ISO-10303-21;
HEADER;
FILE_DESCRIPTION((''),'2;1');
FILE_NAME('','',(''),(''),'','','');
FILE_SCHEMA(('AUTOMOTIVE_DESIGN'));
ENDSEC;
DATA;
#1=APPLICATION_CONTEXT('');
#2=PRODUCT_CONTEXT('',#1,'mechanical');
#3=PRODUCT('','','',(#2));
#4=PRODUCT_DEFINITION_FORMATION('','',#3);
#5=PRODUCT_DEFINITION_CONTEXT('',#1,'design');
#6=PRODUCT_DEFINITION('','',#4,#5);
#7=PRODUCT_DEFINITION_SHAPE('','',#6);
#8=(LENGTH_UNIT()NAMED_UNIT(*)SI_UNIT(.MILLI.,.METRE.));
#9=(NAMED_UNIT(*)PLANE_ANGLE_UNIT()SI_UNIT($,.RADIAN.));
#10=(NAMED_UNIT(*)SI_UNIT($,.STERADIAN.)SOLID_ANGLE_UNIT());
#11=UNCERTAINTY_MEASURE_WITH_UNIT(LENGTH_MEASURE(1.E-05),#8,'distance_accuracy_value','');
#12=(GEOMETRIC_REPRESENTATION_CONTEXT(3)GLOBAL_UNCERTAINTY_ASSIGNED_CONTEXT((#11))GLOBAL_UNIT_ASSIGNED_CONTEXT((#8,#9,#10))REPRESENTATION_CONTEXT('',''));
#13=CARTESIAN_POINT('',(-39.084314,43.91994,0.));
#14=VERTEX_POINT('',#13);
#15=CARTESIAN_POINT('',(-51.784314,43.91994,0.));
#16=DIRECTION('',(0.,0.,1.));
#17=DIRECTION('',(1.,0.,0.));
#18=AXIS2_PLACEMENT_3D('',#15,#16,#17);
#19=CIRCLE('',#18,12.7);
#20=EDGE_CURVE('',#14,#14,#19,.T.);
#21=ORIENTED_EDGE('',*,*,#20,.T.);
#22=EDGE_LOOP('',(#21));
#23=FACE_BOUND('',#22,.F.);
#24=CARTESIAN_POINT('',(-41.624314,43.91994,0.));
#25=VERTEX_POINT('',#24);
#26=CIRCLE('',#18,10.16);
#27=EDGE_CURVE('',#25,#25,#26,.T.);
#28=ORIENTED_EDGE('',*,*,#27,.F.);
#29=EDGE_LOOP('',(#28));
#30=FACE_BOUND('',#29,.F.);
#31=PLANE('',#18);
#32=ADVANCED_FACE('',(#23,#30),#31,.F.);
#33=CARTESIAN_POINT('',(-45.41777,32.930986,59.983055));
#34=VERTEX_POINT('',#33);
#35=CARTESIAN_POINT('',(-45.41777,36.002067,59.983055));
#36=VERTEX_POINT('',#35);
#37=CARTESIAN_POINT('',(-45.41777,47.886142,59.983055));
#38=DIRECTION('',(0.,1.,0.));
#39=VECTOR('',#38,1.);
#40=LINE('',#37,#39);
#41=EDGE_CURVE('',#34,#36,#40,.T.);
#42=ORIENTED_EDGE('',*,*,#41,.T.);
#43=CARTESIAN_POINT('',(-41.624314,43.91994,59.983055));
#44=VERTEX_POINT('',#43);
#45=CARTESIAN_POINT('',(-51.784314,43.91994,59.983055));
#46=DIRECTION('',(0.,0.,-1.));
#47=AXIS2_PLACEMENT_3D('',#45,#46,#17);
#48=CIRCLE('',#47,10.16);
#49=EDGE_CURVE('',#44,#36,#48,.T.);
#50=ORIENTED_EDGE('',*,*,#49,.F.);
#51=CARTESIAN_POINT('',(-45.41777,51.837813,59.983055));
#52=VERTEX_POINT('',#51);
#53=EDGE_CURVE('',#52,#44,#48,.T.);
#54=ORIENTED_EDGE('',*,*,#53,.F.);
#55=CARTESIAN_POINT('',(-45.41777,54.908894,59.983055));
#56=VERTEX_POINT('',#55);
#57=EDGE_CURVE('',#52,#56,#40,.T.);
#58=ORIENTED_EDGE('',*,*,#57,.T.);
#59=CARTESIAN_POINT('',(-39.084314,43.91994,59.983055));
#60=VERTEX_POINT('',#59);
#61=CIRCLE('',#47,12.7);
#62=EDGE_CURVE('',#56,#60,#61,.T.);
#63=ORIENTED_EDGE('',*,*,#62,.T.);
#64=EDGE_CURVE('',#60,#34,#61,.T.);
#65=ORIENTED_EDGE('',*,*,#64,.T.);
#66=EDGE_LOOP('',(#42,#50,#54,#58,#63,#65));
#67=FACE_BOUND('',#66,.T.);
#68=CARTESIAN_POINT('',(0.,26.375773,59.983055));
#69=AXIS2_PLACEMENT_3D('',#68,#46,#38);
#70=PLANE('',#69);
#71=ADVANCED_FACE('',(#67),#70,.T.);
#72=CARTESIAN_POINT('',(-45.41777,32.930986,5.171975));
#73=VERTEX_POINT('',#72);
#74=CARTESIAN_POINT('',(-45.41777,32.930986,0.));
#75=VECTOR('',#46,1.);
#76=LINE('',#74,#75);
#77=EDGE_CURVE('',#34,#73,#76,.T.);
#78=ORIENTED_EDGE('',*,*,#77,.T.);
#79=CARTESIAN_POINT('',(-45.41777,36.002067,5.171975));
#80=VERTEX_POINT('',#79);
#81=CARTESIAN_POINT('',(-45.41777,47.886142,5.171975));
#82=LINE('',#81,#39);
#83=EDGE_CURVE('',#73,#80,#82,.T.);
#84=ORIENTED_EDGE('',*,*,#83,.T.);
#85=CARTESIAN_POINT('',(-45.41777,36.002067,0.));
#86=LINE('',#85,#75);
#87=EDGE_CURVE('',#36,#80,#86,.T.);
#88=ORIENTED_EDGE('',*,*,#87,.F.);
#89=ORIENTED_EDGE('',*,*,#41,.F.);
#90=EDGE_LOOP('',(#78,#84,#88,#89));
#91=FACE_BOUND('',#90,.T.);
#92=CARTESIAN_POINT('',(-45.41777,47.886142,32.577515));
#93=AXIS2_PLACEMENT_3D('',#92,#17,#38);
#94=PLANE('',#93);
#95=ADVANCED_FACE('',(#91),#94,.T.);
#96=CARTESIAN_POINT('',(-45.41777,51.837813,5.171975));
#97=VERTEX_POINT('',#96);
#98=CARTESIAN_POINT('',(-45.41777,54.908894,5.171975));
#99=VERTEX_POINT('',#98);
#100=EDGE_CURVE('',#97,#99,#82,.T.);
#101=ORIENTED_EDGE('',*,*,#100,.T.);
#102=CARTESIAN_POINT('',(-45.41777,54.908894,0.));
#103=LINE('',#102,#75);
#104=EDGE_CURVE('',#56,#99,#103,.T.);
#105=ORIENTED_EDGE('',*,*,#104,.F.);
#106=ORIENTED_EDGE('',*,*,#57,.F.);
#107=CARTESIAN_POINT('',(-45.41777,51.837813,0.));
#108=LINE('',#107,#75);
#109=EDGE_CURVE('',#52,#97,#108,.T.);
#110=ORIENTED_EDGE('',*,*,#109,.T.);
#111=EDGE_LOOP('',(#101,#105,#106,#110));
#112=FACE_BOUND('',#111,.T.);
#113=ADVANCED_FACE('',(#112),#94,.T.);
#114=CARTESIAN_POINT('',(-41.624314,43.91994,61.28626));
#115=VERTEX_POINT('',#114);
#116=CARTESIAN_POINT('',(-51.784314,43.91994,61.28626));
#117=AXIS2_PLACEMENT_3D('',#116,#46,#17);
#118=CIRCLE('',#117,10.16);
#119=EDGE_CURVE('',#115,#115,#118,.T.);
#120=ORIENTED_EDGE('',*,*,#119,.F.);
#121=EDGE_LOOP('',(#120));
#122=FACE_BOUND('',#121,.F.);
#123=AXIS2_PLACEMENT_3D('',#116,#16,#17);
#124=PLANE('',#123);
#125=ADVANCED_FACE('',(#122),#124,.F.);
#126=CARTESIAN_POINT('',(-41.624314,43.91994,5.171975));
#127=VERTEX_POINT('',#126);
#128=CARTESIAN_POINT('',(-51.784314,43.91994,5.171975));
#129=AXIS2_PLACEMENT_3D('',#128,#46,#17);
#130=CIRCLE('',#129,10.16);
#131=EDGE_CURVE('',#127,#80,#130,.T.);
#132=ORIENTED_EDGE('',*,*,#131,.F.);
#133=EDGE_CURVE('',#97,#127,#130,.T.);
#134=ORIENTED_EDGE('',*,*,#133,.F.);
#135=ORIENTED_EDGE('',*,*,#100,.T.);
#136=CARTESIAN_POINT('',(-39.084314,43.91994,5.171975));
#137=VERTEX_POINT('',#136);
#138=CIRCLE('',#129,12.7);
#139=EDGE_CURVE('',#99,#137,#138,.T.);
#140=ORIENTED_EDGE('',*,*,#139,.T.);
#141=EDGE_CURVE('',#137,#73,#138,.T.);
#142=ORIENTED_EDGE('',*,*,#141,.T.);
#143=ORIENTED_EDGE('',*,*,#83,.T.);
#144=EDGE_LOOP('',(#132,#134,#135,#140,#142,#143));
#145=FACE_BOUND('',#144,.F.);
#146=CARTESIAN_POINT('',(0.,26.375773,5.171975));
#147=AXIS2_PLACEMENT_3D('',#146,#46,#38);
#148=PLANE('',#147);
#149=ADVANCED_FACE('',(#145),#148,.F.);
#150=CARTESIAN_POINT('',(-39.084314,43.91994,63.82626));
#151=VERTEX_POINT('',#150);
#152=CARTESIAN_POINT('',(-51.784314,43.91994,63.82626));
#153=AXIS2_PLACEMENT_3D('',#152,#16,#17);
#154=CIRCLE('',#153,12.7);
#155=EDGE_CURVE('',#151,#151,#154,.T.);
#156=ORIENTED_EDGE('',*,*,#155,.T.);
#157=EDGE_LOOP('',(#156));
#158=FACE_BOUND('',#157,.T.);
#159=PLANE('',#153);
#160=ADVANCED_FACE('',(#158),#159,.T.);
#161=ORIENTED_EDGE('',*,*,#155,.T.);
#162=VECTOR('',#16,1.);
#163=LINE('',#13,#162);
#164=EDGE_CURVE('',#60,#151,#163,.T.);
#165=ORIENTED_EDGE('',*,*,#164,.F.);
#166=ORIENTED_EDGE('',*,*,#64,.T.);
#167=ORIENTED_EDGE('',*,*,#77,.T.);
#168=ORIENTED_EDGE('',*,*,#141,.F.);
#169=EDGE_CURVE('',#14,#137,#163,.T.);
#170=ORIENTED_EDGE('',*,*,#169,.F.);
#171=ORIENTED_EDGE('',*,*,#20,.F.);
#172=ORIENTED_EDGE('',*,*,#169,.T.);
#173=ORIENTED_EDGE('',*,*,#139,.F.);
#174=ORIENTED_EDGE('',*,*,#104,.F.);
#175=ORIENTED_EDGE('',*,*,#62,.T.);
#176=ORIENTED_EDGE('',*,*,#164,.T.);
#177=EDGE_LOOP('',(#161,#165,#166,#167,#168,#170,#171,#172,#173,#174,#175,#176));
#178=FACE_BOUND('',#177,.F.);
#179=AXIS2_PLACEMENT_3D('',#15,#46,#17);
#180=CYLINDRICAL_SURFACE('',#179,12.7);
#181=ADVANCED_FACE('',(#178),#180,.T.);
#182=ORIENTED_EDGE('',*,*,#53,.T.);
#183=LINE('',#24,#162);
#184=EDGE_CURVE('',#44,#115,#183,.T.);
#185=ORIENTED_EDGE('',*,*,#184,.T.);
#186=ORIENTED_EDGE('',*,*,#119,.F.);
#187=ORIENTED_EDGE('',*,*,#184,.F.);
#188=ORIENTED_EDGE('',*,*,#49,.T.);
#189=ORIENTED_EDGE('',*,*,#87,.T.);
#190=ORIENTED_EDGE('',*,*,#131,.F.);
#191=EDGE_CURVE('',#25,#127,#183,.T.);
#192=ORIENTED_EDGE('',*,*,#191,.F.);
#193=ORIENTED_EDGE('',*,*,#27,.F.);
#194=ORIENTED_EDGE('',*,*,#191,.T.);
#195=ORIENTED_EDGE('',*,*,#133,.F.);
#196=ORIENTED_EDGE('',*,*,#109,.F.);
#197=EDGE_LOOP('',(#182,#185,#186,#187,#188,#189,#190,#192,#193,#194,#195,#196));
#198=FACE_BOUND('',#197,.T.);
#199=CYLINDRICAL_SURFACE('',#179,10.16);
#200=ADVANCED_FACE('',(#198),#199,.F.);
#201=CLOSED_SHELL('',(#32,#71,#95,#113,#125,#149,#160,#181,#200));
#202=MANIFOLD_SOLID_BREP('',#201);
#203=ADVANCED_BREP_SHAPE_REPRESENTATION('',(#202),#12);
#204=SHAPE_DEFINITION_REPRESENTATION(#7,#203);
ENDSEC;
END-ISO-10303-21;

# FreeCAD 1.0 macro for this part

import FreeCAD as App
import Part
import Sketcher
from FreeCAD import Vector
Q = App.Units.Quantity


def faces_at(feature, points):
    """Names of the faces that lie closest to the given points."""
    faces = feature.Shape.Faces
    near = lambda p: min(range(len(faces)), key=lambda i: faces[i].distToShape(Part.Vertex(*p))[0])
    return sorted({f"Face{near(p) + 1}" for p in points})


def add_polygon(sketch, points):
    """Adds a closed chain of lines whose ends are joined by coincident constraints."""
    first, n = sketch.GeometryCount, len(points)
    for a, b in zip(points, points[1:] + points[:1]):
        sketch.addGeometry(Part.LineSegment(App.Vector(*a, 0), App.Vector(*b, 0)), False)
    for i in range(n):
        sketch.addConstraint(Sketcher.Constraint("Coincident", first + i, 2, first + (i + 1) % n, 1))

doc = App.newDocument("Part")
body = doc.addObject("PartDesign::Body", "Body")

sketch1 = body.newObject("Sketcher::SketchObject", "Sketch")
sketch1.AttachmentSupport = (doc.getObject("XY_Plane"), [""])
sketch1.MapMode = "FlatFace"
sketch1.addGeometry(Part.Circle(Vector(-51.784314, 43.91994, 0), Vector(0, 0, 1), 12.7), False)
sketch1.addConstraint([
    Sketcher.Constraint("Diameter", 0, Q("1 in")),
    Sketcher.Constraint("DistanceY", -1, 1, 0, 3, Q("43.91994 mm")),
    Sketcher.Constraint("DistanceX", 0, 3, -1, 1, Q("51.784314 mm")),
])
pad1 = body.newObject("PartDesign::Pad", "Pad")
pad1.Profile = sketch1
pad1.Length = 63.82626
doc.recompute()

thickness = body.newObject("PartDesign::Thickness", "Thickness")
thickness.Base = (pad1, faces_at(pad1, [(-51.784, 43.92, 0)]))
thickness.Value = Q("0.1 in")
thickness.Reversed = True
thickness.Join = "Arc"

sketch2 = body.newObject("Sketcher::SketchObject", "Sketch001")
sketch2.AttachmentSupport = (doc.getObject("YZ_Plane"), [""])
sketch2.MapMode = "FlatFace"
add_polygon(sketch2, [(26.375773, 59.983055), (26.375773, 5.171975), (69.396512, 5.171975), (69.396512, 59.983055)])
sketch2.addConstraint([
    Sketcher.Constraint("Vertical", 0),
    Sketcher.Constraint("Horizontal", 1),
    Sketcher.Constraint("Vertical", 2),
    Sketcher.Constraint("Horizontal", 3),
    Sketcher.Constraint("DistanceX", 1, 1, 1, 2, Q("43.020739 mm")),
    Sketcher.Constraint("DistanceY", 0, 2, 0, 1, Q("54.811081 mm")),
    Sketcher.Constraint("DistanceX", -1, 1, 1, 2, Q("69.396512 mm")),
    Sketcher.Constraint("DistanceY", -1, 1, 0, 2, Q("5.171975 mm")),
])
pocket1 = body.newObject("PartDesign::Pocket", "Pocket")
pocket1.Profile = sketch2
pocket1.Length = 45.41777

sketch3 = body.newObject("Sketcher::SketchObject", "Sketch002")
sketch3.AttachmentSupport = (doc.getObject("XZ_Plane"), [""])
sketch3.MapMode = "FlatFace"
add_polygon(sketch3, [(-73.924914, 55.007238), (-73.924914, 10.351788), (-32.969932, 10.351788), (-32.969932, 55.007238)])
sketch3.addConstraint([
    Sketcher.Constraint("Vertical", 0),
    Sketcher.Constraint("Horizontal", 1),
    Sketcher.Constraint("Vertical", 2),
    Sketcher.Constraint("Horizontal", 3),
    Sketcher.Constraint("DistanceX", 1, 1, 1, 2, Q("40.954981 mm")),
    Sketcher.Constraint("DistanceY", 0, 2, 0, 1, Q("44.655449 mm")),
    Sketcher.Constraint("DistanceY", -1, 1, 0, 2, Q("10.351788 mm")),
    Sketcher.Constraint("DistanceX", 0, 2, -1, 1, Q("73.924914 mm")),
])
pocket2 = body.newObject("PartDesign::Pocket", "Pocket001")
pocket2.Profile = sketch3
pocket2.Length = 29.8618

doc.recompute()
